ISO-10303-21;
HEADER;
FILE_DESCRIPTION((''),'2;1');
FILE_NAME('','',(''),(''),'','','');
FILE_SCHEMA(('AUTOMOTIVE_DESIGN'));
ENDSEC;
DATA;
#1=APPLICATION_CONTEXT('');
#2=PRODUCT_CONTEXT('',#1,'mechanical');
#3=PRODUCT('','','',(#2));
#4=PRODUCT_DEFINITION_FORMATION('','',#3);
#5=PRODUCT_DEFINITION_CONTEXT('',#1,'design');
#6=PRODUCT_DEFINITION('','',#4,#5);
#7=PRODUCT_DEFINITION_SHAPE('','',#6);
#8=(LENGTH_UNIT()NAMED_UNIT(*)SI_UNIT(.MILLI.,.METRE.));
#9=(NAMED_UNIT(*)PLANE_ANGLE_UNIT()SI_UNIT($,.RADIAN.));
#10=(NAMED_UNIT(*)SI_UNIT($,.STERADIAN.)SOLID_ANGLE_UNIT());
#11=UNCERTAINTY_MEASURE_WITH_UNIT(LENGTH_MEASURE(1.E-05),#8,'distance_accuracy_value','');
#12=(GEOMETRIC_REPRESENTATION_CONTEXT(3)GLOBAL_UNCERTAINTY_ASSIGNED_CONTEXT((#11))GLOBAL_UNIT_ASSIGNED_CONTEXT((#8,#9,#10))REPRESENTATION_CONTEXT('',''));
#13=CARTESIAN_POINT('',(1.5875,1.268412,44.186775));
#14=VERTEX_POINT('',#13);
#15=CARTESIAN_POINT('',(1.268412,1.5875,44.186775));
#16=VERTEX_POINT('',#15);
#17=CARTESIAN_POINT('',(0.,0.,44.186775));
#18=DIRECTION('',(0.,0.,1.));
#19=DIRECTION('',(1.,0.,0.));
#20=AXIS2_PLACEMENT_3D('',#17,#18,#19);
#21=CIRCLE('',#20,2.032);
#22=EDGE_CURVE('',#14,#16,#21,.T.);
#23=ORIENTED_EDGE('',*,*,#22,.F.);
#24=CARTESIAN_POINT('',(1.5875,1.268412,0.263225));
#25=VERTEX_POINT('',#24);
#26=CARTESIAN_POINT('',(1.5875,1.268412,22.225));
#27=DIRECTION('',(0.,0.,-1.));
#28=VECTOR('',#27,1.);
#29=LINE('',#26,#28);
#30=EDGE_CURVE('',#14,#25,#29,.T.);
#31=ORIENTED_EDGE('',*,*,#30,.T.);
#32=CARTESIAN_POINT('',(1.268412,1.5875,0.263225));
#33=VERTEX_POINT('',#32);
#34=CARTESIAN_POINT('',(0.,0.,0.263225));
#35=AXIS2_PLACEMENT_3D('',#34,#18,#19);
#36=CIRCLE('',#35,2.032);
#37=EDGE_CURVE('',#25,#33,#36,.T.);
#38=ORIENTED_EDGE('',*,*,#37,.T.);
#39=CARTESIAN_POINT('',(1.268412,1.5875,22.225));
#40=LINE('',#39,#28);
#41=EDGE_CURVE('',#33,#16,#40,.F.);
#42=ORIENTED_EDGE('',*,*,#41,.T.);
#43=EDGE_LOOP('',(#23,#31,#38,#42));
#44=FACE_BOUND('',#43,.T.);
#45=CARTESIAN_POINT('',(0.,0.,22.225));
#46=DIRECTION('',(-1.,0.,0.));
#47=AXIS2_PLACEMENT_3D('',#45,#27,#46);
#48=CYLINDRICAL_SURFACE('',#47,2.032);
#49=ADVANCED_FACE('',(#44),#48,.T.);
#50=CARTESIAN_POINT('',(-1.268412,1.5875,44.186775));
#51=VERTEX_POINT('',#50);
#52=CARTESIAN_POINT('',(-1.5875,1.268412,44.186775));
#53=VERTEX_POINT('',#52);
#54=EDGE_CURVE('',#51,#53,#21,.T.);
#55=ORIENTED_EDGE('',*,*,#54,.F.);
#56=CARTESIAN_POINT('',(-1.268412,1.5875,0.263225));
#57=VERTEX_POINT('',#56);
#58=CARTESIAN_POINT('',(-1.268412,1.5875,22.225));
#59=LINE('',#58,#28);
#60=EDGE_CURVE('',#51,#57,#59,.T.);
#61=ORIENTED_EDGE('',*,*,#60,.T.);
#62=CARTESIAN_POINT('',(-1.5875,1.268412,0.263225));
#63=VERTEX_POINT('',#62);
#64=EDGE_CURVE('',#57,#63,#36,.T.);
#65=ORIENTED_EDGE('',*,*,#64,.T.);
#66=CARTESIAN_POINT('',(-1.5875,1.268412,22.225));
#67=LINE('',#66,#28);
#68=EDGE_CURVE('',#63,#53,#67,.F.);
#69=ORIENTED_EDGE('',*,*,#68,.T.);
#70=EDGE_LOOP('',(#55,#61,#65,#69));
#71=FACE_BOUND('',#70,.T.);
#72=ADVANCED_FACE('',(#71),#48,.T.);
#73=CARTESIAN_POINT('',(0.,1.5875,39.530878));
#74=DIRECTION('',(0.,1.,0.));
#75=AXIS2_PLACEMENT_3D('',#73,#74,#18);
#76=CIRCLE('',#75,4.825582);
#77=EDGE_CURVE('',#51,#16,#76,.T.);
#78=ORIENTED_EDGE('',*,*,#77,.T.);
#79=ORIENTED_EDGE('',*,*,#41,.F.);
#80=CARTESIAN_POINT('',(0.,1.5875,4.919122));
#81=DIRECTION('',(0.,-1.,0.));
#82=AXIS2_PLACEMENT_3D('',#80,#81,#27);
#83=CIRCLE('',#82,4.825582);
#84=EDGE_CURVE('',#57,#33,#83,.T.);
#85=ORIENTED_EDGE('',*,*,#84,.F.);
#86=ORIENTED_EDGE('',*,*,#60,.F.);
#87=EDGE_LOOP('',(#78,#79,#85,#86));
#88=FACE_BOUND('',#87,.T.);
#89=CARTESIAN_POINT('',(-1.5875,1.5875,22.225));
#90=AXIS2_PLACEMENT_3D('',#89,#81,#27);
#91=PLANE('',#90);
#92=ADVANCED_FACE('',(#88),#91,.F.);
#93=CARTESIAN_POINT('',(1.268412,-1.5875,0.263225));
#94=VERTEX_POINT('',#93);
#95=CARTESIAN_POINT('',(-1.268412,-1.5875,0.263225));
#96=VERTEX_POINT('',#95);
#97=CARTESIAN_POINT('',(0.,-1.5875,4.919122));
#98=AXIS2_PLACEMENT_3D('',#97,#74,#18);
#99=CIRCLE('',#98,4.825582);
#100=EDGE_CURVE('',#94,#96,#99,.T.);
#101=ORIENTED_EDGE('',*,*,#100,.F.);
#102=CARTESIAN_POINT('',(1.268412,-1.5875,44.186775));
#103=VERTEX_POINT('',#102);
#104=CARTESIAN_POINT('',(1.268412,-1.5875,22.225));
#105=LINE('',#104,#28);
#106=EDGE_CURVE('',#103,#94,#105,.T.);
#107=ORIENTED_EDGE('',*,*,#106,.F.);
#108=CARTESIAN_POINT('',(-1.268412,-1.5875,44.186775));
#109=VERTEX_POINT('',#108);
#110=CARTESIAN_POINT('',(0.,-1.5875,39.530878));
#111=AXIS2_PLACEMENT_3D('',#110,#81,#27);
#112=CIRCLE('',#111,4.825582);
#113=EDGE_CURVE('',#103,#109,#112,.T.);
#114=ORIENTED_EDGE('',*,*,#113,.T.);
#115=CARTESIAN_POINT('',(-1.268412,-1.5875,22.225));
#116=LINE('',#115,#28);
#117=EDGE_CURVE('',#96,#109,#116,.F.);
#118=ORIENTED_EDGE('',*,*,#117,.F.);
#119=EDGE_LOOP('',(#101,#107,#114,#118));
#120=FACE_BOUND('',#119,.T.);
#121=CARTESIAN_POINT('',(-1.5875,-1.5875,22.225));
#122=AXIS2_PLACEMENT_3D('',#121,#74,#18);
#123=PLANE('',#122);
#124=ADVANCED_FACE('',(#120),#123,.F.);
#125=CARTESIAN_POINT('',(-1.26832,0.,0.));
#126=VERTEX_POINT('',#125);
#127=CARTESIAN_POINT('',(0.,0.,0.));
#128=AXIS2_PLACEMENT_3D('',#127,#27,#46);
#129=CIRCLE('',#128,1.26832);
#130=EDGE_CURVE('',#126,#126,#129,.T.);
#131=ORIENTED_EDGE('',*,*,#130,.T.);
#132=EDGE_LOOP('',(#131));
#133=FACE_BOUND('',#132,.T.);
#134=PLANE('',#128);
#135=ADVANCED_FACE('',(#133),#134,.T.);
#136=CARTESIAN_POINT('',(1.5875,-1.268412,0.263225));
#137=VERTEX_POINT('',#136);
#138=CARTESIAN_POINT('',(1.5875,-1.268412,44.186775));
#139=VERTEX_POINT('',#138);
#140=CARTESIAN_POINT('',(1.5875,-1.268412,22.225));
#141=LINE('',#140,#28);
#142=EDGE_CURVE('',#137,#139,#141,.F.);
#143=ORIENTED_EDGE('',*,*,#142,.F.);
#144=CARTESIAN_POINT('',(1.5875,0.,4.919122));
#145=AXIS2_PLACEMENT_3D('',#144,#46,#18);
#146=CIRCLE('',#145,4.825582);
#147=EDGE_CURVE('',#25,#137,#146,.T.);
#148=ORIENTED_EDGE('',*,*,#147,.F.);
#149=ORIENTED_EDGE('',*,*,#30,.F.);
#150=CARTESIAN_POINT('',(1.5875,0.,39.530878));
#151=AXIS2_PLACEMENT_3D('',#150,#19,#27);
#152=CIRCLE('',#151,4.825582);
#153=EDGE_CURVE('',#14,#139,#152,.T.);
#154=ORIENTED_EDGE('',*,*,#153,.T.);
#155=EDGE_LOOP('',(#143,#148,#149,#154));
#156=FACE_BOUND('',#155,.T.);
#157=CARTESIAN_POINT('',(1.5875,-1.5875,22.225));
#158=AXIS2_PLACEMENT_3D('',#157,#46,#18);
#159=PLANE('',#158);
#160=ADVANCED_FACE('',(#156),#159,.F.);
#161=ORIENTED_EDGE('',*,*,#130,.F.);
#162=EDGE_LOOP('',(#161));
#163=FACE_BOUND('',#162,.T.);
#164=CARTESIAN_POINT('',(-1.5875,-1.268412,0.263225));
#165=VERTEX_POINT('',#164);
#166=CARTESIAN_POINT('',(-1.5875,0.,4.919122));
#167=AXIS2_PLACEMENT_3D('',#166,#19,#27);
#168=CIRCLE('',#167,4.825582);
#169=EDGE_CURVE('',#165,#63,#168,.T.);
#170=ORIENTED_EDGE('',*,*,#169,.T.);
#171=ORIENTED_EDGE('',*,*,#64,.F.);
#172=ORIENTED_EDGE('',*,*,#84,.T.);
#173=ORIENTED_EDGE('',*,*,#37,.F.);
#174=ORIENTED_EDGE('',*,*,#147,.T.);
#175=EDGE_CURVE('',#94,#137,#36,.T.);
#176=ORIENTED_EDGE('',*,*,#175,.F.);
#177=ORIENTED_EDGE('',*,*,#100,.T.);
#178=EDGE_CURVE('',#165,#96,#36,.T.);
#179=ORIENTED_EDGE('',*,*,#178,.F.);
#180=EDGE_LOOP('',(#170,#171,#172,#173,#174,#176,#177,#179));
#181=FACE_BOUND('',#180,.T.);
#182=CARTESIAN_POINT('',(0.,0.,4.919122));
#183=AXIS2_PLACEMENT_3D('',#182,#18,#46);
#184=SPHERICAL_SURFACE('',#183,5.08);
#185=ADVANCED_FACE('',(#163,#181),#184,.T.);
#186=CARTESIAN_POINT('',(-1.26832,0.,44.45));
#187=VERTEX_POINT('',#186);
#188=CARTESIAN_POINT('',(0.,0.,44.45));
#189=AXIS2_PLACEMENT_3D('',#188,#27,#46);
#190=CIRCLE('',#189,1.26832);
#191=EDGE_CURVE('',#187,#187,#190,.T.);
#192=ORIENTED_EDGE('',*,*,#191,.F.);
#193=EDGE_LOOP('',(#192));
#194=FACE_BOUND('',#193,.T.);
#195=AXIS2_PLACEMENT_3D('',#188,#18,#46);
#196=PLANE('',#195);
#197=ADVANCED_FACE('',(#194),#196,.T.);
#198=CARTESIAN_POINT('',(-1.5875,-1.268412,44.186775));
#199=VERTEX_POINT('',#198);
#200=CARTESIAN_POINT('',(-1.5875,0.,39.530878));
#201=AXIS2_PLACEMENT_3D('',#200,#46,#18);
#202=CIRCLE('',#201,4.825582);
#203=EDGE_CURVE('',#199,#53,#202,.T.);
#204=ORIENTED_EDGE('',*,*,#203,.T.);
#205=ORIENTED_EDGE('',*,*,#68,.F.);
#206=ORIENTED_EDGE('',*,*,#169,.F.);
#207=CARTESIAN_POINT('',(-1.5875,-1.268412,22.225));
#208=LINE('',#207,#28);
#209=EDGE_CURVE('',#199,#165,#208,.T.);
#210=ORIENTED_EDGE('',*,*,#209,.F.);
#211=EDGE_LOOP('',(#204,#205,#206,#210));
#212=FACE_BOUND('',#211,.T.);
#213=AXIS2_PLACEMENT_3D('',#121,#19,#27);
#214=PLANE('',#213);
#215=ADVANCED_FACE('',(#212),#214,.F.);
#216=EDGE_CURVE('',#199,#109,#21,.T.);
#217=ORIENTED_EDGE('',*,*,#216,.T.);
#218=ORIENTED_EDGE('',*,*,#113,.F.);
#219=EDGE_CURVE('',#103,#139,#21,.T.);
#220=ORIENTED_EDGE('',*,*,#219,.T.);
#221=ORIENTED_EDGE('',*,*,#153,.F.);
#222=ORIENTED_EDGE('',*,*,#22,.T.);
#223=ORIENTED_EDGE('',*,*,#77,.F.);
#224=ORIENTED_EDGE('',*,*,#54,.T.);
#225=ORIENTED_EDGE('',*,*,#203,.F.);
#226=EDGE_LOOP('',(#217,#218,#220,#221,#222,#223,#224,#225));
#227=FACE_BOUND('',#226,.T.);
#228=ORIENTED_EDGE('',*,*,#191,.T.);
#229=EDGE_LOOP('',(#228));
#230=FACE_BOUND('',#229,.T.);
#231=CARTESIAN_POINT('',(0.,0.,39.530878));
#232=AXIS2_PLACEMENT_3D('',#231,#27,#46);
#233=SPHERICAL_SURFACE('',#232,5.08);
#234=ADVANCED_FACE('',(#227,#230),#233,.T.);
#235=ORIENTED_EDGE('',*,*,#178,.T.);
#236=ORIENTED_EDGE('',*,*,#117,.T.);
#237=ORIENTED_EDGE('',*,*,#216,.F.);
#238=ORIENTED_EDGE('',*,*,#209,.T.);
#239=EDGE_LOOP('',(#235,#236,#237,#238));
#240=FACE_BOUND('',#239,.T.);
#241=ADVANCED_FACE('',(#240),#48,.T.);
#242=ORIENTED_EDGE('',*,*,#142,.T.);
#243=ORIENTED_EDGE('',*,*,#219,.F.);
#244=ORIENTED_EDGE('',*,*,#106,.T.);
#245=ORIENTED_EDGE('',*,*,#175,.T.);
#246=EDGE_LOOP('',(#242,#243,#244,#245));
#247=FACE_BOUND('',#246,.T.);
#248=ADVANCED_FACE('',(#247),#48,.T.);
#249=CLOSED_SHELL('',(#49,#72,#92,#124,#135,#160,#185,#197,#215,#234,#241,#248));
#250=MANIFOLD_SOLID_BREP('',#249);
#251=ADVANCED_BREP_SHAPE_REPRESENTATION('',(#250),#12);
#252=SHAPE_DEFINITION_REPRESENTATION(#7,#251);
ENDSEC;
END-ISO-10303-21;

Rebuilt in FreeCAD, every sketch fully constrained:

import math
import FreeCAD as App
import Part
import Sketcher
Q = App.Units.Quantity


def add_polygon(sketch, points):
    """Adds a closed chain of lines whose ends are joined by coincident constraints."""
    first, n = sketch.GeometryCount, len(points)
    for a, b in zip(points, points[1:] + points[:1]):
        sketch.addGeometry(Part.LineSegment(App.Vector(*a, 0), App.Vector(*b, 0)), False)
    for i in range(n):
        sketch.addConstraint(Sketcher.Constraint("Coincident", first + i, 2, first + (i + 1) % n, 1))

doc = App.newDocument("Part")
body = doc.addObject("PartDesign::Body", "Body")

# Sketch on XY plane
sketch1 = body.newObject("Sketcher::SketchObject", "Sketch")
sketch1.AttachmentSupport = (doc.getObject("XY_Plane"), [""])
sketch1.MapMode = "FlatFace"
add_polygon(sketch1, [(-1.5875, 1.5875), (-1.5875, -1.5875), (1.5875, -1.5875), (1.5875, 1.5875)])  # lines 0-3
sketch1.addConstraint([
    Sketcher.Constraint("Vertical", 0),
    Sketcher.Constraint("Horizontal", 1),
    Sketcher.Constraint("Vertical", 2),
    Sketcher.Constraint("Horizontal", 3),
    Sketcher.Constraint("Symmetric", 0, 2, 2, 2, -1, 1),
    Sketcher.Constraint("Equal", 3, 0),
    Sketcher.Constraint("DistanceX", 1, 1, 1, 2, Q("0.125 in")),
])
pad1 = body.newObject("PartDesign::Pad", "Pad")
pad1.Profile = sketch1
pad1.Length = Q("0.875 in")

# Sketch on XY plane
sketch2 = body.newObject("Sketcher::SketchObject", "Sketch001")
sketch2.AttachmentSupport = (doc.getObject("XY_Plane"), [""])
sketch2.MapMode = "FlatFace"
add_polygon(sketch2, [(4.854, 4.854), (4.854, -4.854), (-4.854, -4.854), (-4.854, 4.854)])  # lines 0-3
sketch2.addGeometry(Part.Circle(App.Vector(0, 0, 0), App.Vector(0, 0, 1), 2.032), False)  # 4
sketch2.addConstraint([
    Sketcher.Constraint("Vertical", 0),
    Sketcher.Constraint("Horizontal", 1),
    Sketcher.Constraint("Vertical", 2),
    Sketcher.Constraint("Horizontal", 3),
    Sketcher.Constraint("Coincident", 4, 3, -1, 1),
    Sketcher.Constraint("Symmetric", 0, 2, 2, 2, -1, 1),
    Sketcher.Constraint("Equal", 3, 0),
    Sketcher.Constraint("Diameter", 4, Q("0.16 in")),
    Sketcher.Constraint("DistanceX", 1, 2, 1, 1, Q("9.708 mm")),
])
pocket1 = body.newObject("PartDesign::Pocket", "Pocket")
pocket1.Profile = sketch2
pocket1.Type = "ThroughAll"
pocket1.Reversed = True

# Sketch on XZ plane
sketch3 = body.newObject("Sketcher::SketchObject", "Sketch002")
sketch3.AttachmentSupport = (doc.getObject("XZ_Plane"), [""])
sketch3.MapMode = "FlatFace"
sketch3.addGeometry([
    Part.LineSegment(App.Vector(-5.053686, -5.740531, 0), App.Vector(-5.053686, 4.402733, 0)),
    Part.ArcOfCircle(Part.Circle(App.Vector(0, 4.919122, 0), App.Vector(0, 0, 1), 5.08), math.radians(-174.165721), math.radians(-90)),
    Part.LineSegment(App.Vector(0, -0.160878, 0), App.Vector(0, -5.740531, 0)),
    Part.LineSegment(App.Vector(0, -5.740531, 0), App.Vector(-5.053686, -5.740531, 0)),
], False)
sketch3.addConstraint([
    Sketcher.Constraint("Coincident", 0, 2, 1, 1),
    Sketcher.Constraint("Coincident", 1, 2, 2, 1),
    Sketcher.Constraint("Coincident", 2, 2, 3, 1),
    Sketcher.Constraint("Coincident", 3, 2, 0, 1),
    Sketcher.Constraint("Vertical", 0),
    Sketcher.Constraint("Vertical", 2),
    Sketcher.Constraint("Horizontal", 3),
    Sketcher.Constraint("PointOnObject", 1, 3, -2),
    Sketcher.Constraint("PointOnObject", 1, 2, -2),
    Sketcher.Constraint("Radius", 1, Q("0.2 in")),
    Sketcher.Constraint("DistanceX", 3, 2, 3, 1, Q("5.053686 mm")),
    Sketcher.Constraint("DistanceY", 0, 1, 0, 2, Q("10.143263 mm")),
    Sketcher.Constraint("DistanceY", 2, 2, -1, 1, Q("5.740531 mm")),
])
groove = body.newObject("PartDesign::Groove", "Groove")
groove.Profile = sketch3
groove.ReferenceAxis = (sketch3, ["V_Axis"])
groove.Angle = 360
body2 = doc.addObject("PartDesign::Body", "Body001")
doc.recompute()

body2.BaseFeature = body
doc.recompute()

mirroring = doc.addObject("Part::Mirroring", "Mirroring")
mirroring.Source = body
mirroring.Base = App.Vector(0, 0, 22.225)
mirroring.Normal = App.Vector(0, 0, -1)
body3 = doc.addObject("PartDesign::Body", "Body002")
body3.BaseFeature = mirroring
boolean = body2.newObject("PartDesign::Boolean", "Boolean")
boolean.Type = "Fuse"
boolean.addObjects([body3])
doc.recompute()
mirroring.Visibility = False

doc.recompute()
